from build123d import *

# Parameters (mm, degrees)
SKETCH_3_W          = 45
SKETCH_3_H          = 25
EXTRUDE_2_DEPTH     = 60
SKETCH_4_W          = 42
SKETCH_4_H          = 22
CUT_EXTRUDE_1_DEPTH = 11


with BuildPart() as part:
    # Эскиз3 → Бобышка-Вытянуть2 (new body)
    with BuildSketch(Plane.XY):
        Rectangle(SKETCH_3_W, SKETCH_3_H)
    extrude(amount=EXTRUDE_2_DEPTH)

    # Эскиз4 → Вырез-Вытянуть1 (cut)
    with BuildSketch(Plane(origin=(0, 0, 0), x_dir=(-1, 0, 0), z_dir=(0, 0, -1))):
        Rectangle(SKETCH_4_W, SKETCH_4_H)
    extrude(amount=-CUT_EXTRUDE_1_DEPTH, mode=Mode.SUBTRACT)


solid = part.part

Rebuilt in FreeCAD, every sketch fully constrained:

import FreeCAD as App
import Part
import Sketcher
from FreeCAD import Vector


def add_polygon(sketch, points):
    """Adds a closed chain of lines whose ends are joined by coincident constraints."""
    first, n = sketch.GeometryCount, len(points)
    for a, b in zip(points, points[1:] + points[:1]):
        sketch.addGeometry(Part.LineSegment(App.Vector(*a, 0), App.Vector(*b, 0)), False)
    for i in range(n):
        sketch.addConstraint(Sketcher.Constraint("Coincident", first + i, 2, first + (i + 1) % n, 1))

doc = App.newDocument("Part")
body = doc.addObject("PartDesign::Body", "Body")

# Sketch on XY plane
sketch1 = doc.addObject("Sketcher::SketchObject", "Sketch")
body.addObject(sketch1)
sketch1.AttachmentSupport = (doc.XY_Plane, [""])
sketch1.MapMode = "FlatFace"
add_polygon(sketch1, [(-22, 12), (-22, -12), (22, -12), (22, 12)])  # lines 0-3
sketch1.addConstraint(Sketcher.Constraint("Vertical", 0))
sketch1.addConstraint(Sketcher.Constraint("Horizontal", 1))
sketch1.addConstraint(Sketcher.Constraint("Vertical", 2))
sketch1.addConstraint(Sketcher.Constraint("Horizontal", 3))
sketch1.addConstraint(Sketcher.Constraint("Symmetric", 0, 2, 2, 2, -1, 1))
sketch1.addConstraint(Sketcher.Constraint("DistanceX", 1, 1, 1, 2, 45.0))
sketch1.addConstraint(Sketcher.Constraint("DistanceY", 0, 2, 0, 1, 25.0))
pad1 = doc.addObject("PartDesign::Pad", "Pad")
body.addObject(pad1)
pad1.Profile = sketch1
pad1.Length = 60

# Sketch on XY plane
sketch2 = doc.addObject("Sketcher::SketchObject", "Sketch001")
body.addObject(sketch2)
sketch2.AttachmentSupport = (doc.XY_Plane, [""])
sketch2.MapMode = "FlatFace"
add_polygon(sketch2, [(21, 11), (21, -11), (-21, -11), (-21, 11)])  # lines 0-3
sketch2.addConstraint(Sketcher.Constraint("Vertical", 0))
sketch2.addConstraint(Sketcher.Constraint("Horizontal", 1))
sketch2.addConstraint(Sketcher.Constraint("Vertical", 2))
sketch2.addConstraint(Sketcher.Constraint("Horizontal", 3))
sketch2.addConstraint(Sketcher.Constraint("Symmetric", 0, 2, 2, 2, -1, 1))
sketch2.addConstraint(Sketcher.Constraint("DistanceX", 1, 2, 1, 1, 42.0))
sketch2.addConstraint(Sketcher.Constraint("DistanceY", 0, 2, 0, 1, 22.0))
pocket1 = doc.addObject("PartDesign::Pocket", "Pocket")
body.addObject(pocket1)
pocket1.Profile = sketch2
pocket1.Length = 11
pocket1.Reversed = True

doc.recompute()
